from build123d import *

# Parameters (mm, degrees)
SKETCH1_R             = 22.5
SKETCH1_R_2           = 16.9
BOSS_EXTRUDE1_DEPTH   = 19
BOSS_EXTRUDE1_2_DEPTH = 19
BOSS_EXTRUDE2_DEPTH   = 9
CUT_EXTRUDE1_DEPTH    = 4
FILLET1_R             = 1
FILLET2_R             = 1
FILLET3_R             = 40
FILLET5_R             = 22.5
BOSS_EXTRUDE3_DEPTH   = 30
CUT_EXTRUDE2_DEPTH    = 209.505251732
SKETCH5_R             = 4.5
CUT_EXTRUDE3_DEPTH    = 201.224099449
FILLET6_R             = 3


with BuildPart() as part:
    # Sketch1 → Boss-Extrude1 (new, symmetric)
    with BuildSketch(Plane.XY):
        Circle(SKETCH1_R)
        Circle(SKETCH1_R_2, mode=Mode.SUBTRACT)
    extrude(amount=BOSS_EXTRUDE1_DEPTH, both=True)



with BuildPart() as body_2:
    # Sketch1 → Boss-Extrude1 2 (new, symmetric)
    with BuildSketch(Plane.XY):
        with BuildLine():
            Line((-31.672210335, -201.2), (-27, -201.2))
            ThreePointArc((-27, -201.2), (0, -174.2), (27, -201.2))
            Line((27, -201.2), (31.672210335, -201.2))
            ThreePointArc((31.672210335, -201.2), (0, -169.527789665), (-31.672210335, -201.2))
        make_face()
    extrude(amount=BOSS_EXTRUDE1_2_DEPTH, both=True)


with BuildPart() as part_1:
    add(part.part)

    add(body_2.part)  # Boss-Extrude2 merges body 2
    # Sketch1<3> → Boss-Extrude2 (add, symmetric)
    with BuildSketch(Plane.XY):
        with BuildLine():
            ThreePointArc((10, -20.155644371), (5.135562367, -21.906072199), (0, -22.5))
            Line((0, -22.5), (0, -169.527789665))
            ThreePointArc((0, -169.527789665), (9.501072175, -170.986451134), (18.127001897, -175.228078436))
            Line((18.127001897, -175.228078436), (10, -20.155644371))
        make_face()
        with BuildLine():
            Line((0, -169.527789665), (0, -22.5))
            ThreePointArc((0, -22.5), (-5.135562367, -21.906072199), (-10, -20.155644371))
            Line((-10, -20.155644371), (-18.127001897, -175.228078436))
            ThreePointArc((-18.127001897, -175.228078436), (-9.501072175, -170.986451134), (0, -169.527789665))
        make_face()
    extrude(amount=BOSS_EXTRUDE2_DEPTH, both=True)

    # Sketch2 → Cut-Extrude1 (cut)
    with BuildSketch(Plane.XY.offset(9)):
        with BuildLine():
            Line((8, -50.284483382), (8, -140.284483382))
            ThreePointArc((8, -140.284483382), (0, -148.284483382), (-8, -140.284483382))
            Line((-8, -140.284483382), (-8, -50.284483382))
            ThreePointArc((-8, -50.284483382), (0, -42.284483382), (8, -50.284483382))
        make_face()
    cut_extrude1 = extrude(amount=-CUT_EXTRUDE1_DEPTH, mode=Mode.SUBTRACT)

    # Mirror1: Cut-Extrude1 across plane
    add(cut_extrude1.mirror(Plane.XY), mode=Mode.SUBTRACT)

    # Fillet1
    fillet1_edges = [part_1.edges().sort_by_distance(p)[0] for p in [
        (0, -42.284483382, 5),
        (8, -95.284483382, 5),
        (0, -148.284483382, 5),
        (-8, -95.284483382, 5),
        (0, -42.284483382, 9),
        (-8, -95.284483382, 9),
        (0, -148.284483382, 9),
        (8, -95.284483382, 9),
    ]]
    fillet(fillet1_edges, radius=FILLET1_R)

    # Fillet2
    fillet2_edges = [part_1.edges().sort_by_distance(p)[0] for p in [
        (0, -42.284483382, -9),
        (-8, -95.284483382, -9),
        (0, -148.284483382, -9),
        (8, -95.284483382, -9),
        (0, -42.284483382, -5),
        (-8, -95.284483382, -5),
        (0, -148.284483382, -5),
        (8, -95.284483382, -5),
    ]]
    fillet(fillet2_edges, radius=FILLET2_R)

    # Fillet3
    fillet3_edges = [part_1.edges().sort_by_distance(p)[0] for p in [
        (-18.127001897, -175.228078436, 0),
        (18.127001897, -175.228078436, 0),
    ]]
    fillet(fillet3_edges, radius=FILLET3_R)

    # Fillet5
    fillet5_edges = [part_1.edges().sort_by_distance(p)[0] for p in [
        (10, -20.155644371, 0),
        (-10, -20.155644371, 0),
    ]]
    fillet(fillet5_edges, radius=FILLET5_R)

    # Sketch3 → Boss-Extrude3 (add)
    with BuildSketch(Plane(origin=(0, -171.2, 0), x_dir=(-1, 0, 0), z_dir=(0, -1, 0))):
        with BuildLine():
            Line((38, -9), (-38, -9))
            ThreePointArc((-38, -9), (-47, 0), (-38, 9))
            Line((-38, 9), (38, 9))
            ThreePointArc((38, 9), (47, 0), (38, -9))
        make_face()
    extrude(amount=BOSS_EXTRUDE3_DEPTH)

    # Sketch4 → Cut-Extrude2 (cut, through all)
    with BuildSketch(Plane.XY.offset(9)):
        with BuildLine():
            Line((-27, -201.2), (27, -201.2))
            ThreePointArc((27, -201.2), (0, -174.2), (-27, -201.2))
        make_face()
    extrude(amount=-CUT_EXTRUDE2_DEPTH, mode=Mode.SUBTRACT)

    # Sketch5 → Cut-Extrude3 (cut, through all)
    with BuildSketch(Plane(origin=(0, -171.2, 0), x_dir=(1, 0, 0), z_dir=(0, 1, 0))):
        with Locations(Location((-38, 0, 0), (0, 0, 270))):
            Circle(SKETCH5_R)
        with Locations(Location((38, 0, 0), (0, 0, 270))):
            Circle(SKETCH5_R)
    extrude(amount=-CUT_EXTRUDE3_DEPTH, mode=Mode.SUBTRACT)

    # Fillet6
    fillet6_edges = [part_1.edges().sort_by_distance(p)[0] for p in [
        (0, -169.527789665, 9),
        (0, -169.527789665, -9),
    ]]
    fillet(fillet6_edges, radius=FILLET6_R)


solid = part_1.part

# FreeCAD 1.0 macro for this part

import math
import FreeCAD as App
import Part
import Sketcher
Q = App.Units.Quantity


def edges_at(feature, points):
    """Names of the edges that pass closest to the given points."""
    edges = feature.Shape.Edges
    near = lambda p: min(range(len(edges)), key=lambda i: edges[i].distToShape(Part.Vertex(*p))[0])
    return sorted({f"Edge{near(p) + 1}" for p in points})

doc = App.newDocument("Part")
params = doc.addObject("Spreadsheet::Sheet", "Params")
for row, (alias, value) in enumerate([
    ("sketch1_diameter", "45 mm"),
    ("sketch1_diameter2", "33.8 mm"),
    ("pad1_length", "38 mm"),
    ("sketch2_radius", "27 mm"),
    ("pad2_length", "38 mm"),
    ("sketch3_radius", "22.5 mm"),
    ("pad3_length", "18 mm"),
    ("sketch4_radius", "8 mm"),
    ("sketch4_height", "90 mm"),
    ("pocket1_length", "4 mm"),
    ("fillet_radius", "1 mm"),
    ("fillet2_radius", "1 mm"),
    ("fillet3_radius", "40 mm"),
    ("fillet4_radius", "22.5 mm"),
    ("sketch5_radius", "9 mm"),
    ("sketch5_width", "76 mm"),
    ("pad4_length", "30 mm"),
    ("sketch6_radius", "27 mm"),
    ("sketch7_diameter", "9 mm"),
    ("fillet5_radius", "3 mm"),
], start=1):
    params.set(f"A{row}", alias)
    params.set(f"B{row}", "=" + value)
    params.setAlias(f"B{row}", alias)

body = doc.addObject("PartDesign::Body", "Body")

# Sketch on XY plane
sketch1 = body.newObject("Sketcher::SketchObject", "Sketch")
sketch1.AttachmentSupport = (doc.getObject("XY_Plane"), [""])
sketch1.MapMode = "FlatFace"
sketch1.addGeometry(Part.Circle(App.Vector(0, 0, 0), App.Vector(0, 0, 1), 22), False)
sketch1.addGeometry(Part.Circle(App.Vector(0, 0, 0), App.Vector(0, 0, 1), 17), False)
sketch1.addConstraint(Sketcher.Constraint("Coincident", 0, 3, -1, 1))
sketch1.addConstraint(Sketcher.Constraint("Coincident", 1, 3, -1, 1))
sketch1.addConstraint(Sketcher.Constraint("Diameter", 0, Q("45 mm")))
sketch1.addConstraint(Sketcher.Constraint("Diameter", 1, Q("33.8 mm")))
sketch1.setExpression("Constraints[2]", "Params.sketch1_diameter")
sketch1.setExpression("Constraints[3]", "Params.sketch1_diameter2")
pad1 = body.newObject("PartDesign::Pad", "Pad")
pad1.Profile = sketch1
pad1.setExpression("Length", "Params.pad1_length")
pad1.Midplane = True
body2 = doc.addObject("PartDesign::Body", "Body001")

# Sketch on XY plane
sketch2 = body2.newObject("Sketcher::SketchObject", "Sketch001")
sketch2.AttachmentSupport = (doc.getObject("XY_Plane001"), [""])
sketch2.MapMode = "FlatFace"
sketch2.addGeometry(Part.LineSegment(App.Vector(-31.7, -201.2, 0), App.Vector(-27, -201.2, 0)), False)
sketch2.addGeometry(Part.ArcOfCircle(Part.Circle(App.Vector(0, -201.2, 0), App.Vector(0, 0, 1), 27), math.radians(0), math.radians(180)), False)
sketch2.addGeometry(Part.LineSegment(App.Vector(27, -201.2, 0), App.Vector(31.7, -201.2, 0)), False)
sketch2.addGeometry(Part.ArcOfCircle(Part.Circle(App.Vector(0, -201.2, 0), App.Vector(0, 0, 1), 31.7), math.radians(0), math.radians(180)), False)
sketch2.addConstraint(Sketcher.Constraint("Coincident", 0, 2, 1, 2))
sketch2.addConstraint(Sketcher.Constraint("Coincident", 1, 1, 2, 1))
sketch2.addConstraint(Sketcher.Constraint("Coincident", 2, 2, 3, 1))
sketch2.addConstraint(Sketcher.Constraint("Coincident", 3, 2, 0, 1))
sketch2.addConstraint(Sketcher.Constraint("Horizontal", 0))
sketch2.addConstraint(Sketcher.Constraint("Horizontal", 2))
sketch2.addConstraint(Sketcher.Constraint("Coincident", 3, 3, 1, 3))
sketch2.addConstraint(Sketcher.Constraint("Symmetric", 0, 2, 1, 1, -2))
sketch2.addConstraint(Sketcher.Constraint("Horizontal", 3, 3, 0, 2))
sketch2.addConstraint(Sketcher.Constraint("Radius", 1, Q("27 mm")))
sketch2.addConstraint(Sketcher.Constraint("DistanceY", 1, 3, -1, 1, Q("201.2 mm")))
sketch2.addConstraint(Sketcher.Constraint("Radius", 3, Q("31.67221 mm")))
sketch2.setExpression("Constraints[9]", "Params.sketch2_radius")
pad2 = body2.newObject("PartDesign::Pad", "Pad001")
pad2.Profile = sketch2
pad2.setExpression("Length", "Params.pad2_length")
pad2.Midplane = True
body.AllowCompound = True
doc.recompute()

boolean = body.newObject("PartDesign::Boolean", "Boolean")
boolean.Type = "Fuse"
boolean.addObjects([body2])

# Sketch on XY plane
sketch3 = body.newObject("Sketcher::SketchObject", "Sketch002")
sketch3.AttachmentSupport = (doc.getObject("XY_Plane"), [""])
sketch3.MapMode = "FlatFace"
sketch3.addGeometry(Part.ArcOfCircle(Part.Circle(App.Vector(0, 0, 0), App.Vector(0, 0, 1), 22), math.radians(-90), math.radians(-64)), False)
sketch3.addGeometry(Part.ArcOfCircle(Part.Circle(App.Vector(0, 0, 0), App.Vector(0, 0, 1), 22), math.radians(-116), math.radians(-90)), False)
sketch3.addGeometry(Part.LineSegment(App.Vector(-10, -20, 0), App.Vector(-18, -175, 0)), False)
sketch3.addGeometry(Part.ArcOfCircle(Part.Circle(App.Vector(0, -201, 0), App.Vector(0, 0, 1), 32), math.radians(90), math.radians(125)), False)
sketch3.addGeometry(Part.ArcOfCircle(Part.Circle(App.Vector(0, -201, 0), App.Vector(0, 0, 1), 32), math.radians(55), math.radians(90)), False)
sketch3.addGeometry(Part.LineSegment(App.Vector(18, -175, 0), App.Vector(10, -20, 0)), False)
sketch3.addConstraint(Sketcher.Constraint("Tangent", 0, 1, 1, 2))
sketch3.addConstraint(Sketcher.Constraint("Coincident", 1, 1, 2, 1))
sketch3.addConstraint(Sketcher.Constraint("Coincident", 2, 2, 3, 2))
sketch3.addConstraint(Sketcher.Constraint("Tangent", 3, 1, 4, 2))
sketch3.addConstraint(Sketcher.Constraint("Coincident", 4, 1, 5, 1))
sketch3.addConstraint(Sketcher.Constraint("Coincident", 5, 2, 0, 2))
sketch3.addConstraint(Sketcher.Constraint("Coincident", 0, 3, -1, 1))
sketch3.addConstraint(Sketcher.Constraint("Equal", 0, 1))
sketch3.addConstraint(Sketcher.Constraint("Equal", 3, 4))
sketch3.addConstraint(Sketcher.Constraint("Symmetric", 2, 2, 4, 1, -2))
sketch3.addConstraint(Sketcher.Constraint("PointOnObject", 0, 1, -2))
sketch3.addConstraint(Sketcher.Constraint("PointOnObject", 3, 1, -2))
sketch3.addConstraint(Sketcher.Constraint("Horizontal", 1, 1, 5, 2))
sketch3.addConstraint(Sketcher.Constraint("Radius", 0, Q("22.5 mm")))
sketch3.addConstraint(Sketcher.Constraint("Angle", 2, Q("-93 deg")))
sketch3.addConstraint(Sketcher.Constraint("DistanceX", 1, 1, -1, 1, Q("10 mm")))
sketch3.addConstraint(Sketcher.Constraint("DistanceY", 3, 3, -1, 1, Q("201.2 mm")))
sketch3.addConstraint(Sketcher.Constraint("Radius", 3, Q("31.67221 mm")))
sketch3.setExpression("Constraints[13]", "Params.sketch3_radius")
pad3 = body.newObject("PartDesign::Pad", "Pad002")
pad3.Profile = sketch3
pad3.setExpression("Length", "Params.pad3_length")
pad3.Midplane = True

# Sketch on XY plane
sketch4 = body.newObject("Sketcher::SketchObject", "Sketch003")
sketch4.AttachmentSupport = (doc.getObject("XY_Plane"), [""])
sketch4.MapMode = "FlatFace"
sketch4.AttachmentOffset = App.Placement(App.Vector(0, 0, 9), App.Rotation())
sketch4.addGeometry(Part.LineSegment(App.Vector(8, -140, 0), App.Vector(8, -50, 0)), False)
sketch4.addGeometry(Part.ArcOfCircle(Part.Circle(App.Vector(0, -50, 0), App.Vector(0, 0, 1), 8), math.radians(0), math.radians(180)), False)
sketch4.addGeometry(Part.LineSegment(App.Vector(-8, -50, 0), App.Vector(-8, -140, 0)), False)
sketch4.addGeometry(Part.ArcOfCircle(Part.Circle(App.Vector(0, -140, 0), App.Vector(0, 0, 1), 8), math.radians(180), math.radians(360)), False)
sketch4.addConstraint(Sketcher.Constraint("Tangent", 0, 2, 1, 1))
sketch4.addConstraint(Sketcher.Constraint("Tangent", 1, 2, 2, 1))
sketch4.addConstraint(Sketcher.Constraint("Tangent", 2, 2, 3, 1))
sketch4.addConstraint(Sketcher.Constraint("Tangent", 3, 2, 0, 1))
sketch4.addConstraint(Sketcher.Constraint("Vertical", 0))
sketch4.addConstraint(Sketcher.Constraint("Vertical", 2))
sketch4.addConstraint(Sketcher.Constraint("PointOnObject", 1, 3, -2))
sketch4.addConstraint(Sketcher.Constraint("Radius", 1, Q("8 mm")))
sketch4.addConstraint(Sketcher.Constraint("DistanceY", 0, 1, 0, 2, Q("90 mm")))
sketch4.addConstraint(Sketcher.Constraint("DistanceY", 1, 3, -1, 1, Q("50.284483 mm")))
sketch4.setExpression("Constraints[7]", "Params.sketch4_radius")
sketch4.setExpression("Constraints[8]", "Params.sketch4_height")
pocket1 = body.newObject("PartDesign::Pocket", "Pocket")
pocket1.Profile = sketch4
pocket1.setExpression("Length", "Params.pocket1_length")
doc.recompute()

mirrored = body.newObject("PartDesign::Mirrored", "Mirrored")
mirrored.Originals = [pocket1]
mirrored.MirrorPlane = (doc.getObject("XY_Plane"), [""])
body.Tip = mirrored
doc.recompute()

fillet = body.newObject("PartDesign::Fillet", "Fillet")
fillet.Base = (mirrored, edges_at(mirrored, [
    (0, -42.284, 5),
    (8, -95.284, 5),
    (0, -148.284, 5),
    (-8, -95.284, 5),
    (0, -42.284, 9),
    (-8, -95.284, 9),
    (0, -148.284, 9),
    (8, -95.284, 9),
]))
fillet.setExpression("Radius", "Params.fillet_radius")
doc.recompute()

fillet2 = body.newObject("PartDesign::Fillet", "Fillet001")
fillet2.Base = (fillet, edges_at(fillet, [
    (0, -42.284, -9),
    (-8, -95.284, -9),
    (0, -148.284, -9),
    (8, -95.284, -9),
    (0, -42.284, -5),
    (-8, -95.284, -5),
    (0, -148.284, -5),
    (8, -95.284, -5),
]))
fillet2.setExpression("Radius", "Params.fillet2_radius")
doc.recompute()

fillet3 = body.newObject("PartDesign::Fillet", "Fillet002")
fillet3.Base = (fillet2, edges_at(fillet2, [(-18.127, -175.228, 0), (18.127, -175.228, 0)]))
fillet3.setExpression("Radius", "Params.fillet3_radius")
doc.recompute()

fillet4 = body.newObject("PartDesign::Fillet", "Fillet003")
fillet4.Base = (fillet3, edges_at(fillet3, [(10, -20.156, 0), (-10, -20.156, 0)]))
fillet4.setExpression("Radius", "Params.fillet4_radius")

# Sketch on XZ plane
sketch5 = body.newObject("Sketcher::SketchObject", "Sketch004")
sketch5.AttachmentSupport = (doc.getObject("XZ_Plane"), [""])
sketch5.MapMode = "FlatFace"
sketch5.AttachmentOffset = App.Placement(App.Vector(0, 0, 171.2), App.Rotation())
sketch5.addGeometry(Part.LineSegment(App.Vector(38, 9, 0), App.Vector(-38, 9, 0)), False)
sketch5.addGeometry(Part.ArcOfCircle(Part.Circle(App.Vector(-38, 0, 0), App.Vector(0, 0, 1), 9), math.radians(90), math.radians(270)), False)
sketch5.addGeometry(Part.LineSegment(App.Vector(-38, -9, 0), App.Vector(38, -9, 0)), False)
sketch5.addGeometry(Part.ArcOfCircle(Part.Circle(App.Vector(38, 0, 0), App.Vector(0, 0, 1), 9), math.radians(-90), math.radians(90)), False)
sketch5.addConstraint(Sketcher.Constraint("Tangent", 0, 2, 1, 1))
sketch5.addConstraint(Sketcher.Constraint("Tangent", 1, 2, 2, 1))
sketch5.addConstraint(Sketcher.Constraint("Tangent", 2, 2, 3, 1))
sketch5.addConstraint(Sketcher.Constraint("Tangent", 3, 2, 0, 1))
sketch5.addConstraint(Sketcher.Constraint("Horizontal", 0))
sketch5.addConstraint(Sketcher.Constraint("Horizontal", 2))
sketch5.addConstraint(Sketcher.Constraint("Symmetric", 1, 3, 3, 3, -1, 1))
sketch5.addConstraint(Sketcher.Constraint("Radius", 1, Q("9 mm")))
sketch5.addConstraint(Sketcher.Constraint("DistanceX", 0, 2, 0, 1, Q("76 mm")))
sketch5.setExpression("Constraints[7]", "Params.sketch5_radius")
sketch5.setExpression("Constraints[8]", "Params.sketch5_width")
pad4 = body.newObject("PartDesign::Pad", "Pad003")
pad4.Profile = sketch5
pad4.setExpression("Length", "Params.pad4_length")

# Sketch on XY plane
sketch6 = body.newObject("Sketcher::SketchObject", "Sketch005")
sketch6.AttachmentSupport = (doc.getObject("XY_Plane"), [""])
sketch6.MapMode = "FlatFace"
sketch6.AttachmentOffset = App.Placement(App.Vector(0, 0, 9), App.Rotation())
sketch6.addGeometry(Part.LineSegment(App.Vector(-27, -201, 0), App.Vector(27, -201, 0)), False)
sketch6.addGeometry(Part.ArcOfCircle(Part.Circle(App.Vector(0, -201, 0), App.Vector(0, 0, 1), 27), math.radians(0), math.radians(180)), False)
sketch6.addConstraint(Sketcher.Constraint("Coincident", 0, 1, 1, 2))
sketch6.addConstraint(Sketcher.Constraint("Coincident", 1, 1, 0, 2))
sketch6.addConstraint(Sketcher.Constraint("Horizontal", 0))
sketch6.addConstraint(Sketcher.Constraint("PointOnObject", 1, 3, -2))
sketch6.addConstraint(Sketcher.Constraint("Horizontal", 1, 3, 0, 1))
sketch6.addConstraint(Sketcher.Constraint("Radius", 1, Q("27 mm")))
sketch6.addConstraint(Sketcher.Constraint("DistanceY", 1, 3, -1, 1, Q("201.2 mm")))
sketch6.setExpression("Constraints[5]", "Params.sketch6_radius")
pocket2 = body.newObject("PartDesign::Pocket", "Pocket001")
pocket2.Profile = sketch6
pocket2.Type = "ThroughAll"

# Sketch on XZ plane
sketch7 = body.newObject("Sketcher::SketchObject", "Sketch006")
sketch7.AttachmentSupport = (doc.getObject("XZ_Plane"), [""])
sketch7.MapMode = "FlatFace"
sketch7.AttachmentOffset = App.Placement(App.Vector(0, 0, 171.2), App.Rotation())
sketch7.addGeometry(Part.Circle(App.Vector(-38, 0, 0), App.Vector(0, 0, 1), 4.5), False)
sketch7.addGeometry(Part.Circle(App.Vector(38, 0, 0), App.Vector(0, 0, 1), 4.5), False)
sketch7.addConstraint(Sketcher.Constraint("Equal", 0, 1))
sketch7.addConstraint(Sketcher.Constraint("Symmetric", 0, 3, 1, 3, -1, 1))
sketch7.addConstraint(Sketcher.Constraint("PointOnObject", 0, 3, -1))
sketch7.addConstraint(Sketcher.Constraint("Diameter", 0, Q("9 mm")))
sketch7.addConstraint(Sketcher.Constraint("DistanceX", 0, 3, -1, 1, Q("38 mm")))
sketch7.setExpression("Constraints[3]", "Params.sketch7_diameter")
pocket3 = body.newObject("PartDesign::Pocket", "Pocket002")
pocket3.Profile = sketch7
pocket3.Type = "ThroughAll"
pocket3.Reversed = True
doc.recompute()

fillet5 = body.newObject("PartDesign::Fillet", "Fillet004")
fillet5.Base = (pocket3, edges_at(pocket3, [(-9.501, -170.986, 9), (9.501, -170.986, -9)]))
fillet5.setExpression("Radius", "Params.fillet5_radius")

doc.recompute()
